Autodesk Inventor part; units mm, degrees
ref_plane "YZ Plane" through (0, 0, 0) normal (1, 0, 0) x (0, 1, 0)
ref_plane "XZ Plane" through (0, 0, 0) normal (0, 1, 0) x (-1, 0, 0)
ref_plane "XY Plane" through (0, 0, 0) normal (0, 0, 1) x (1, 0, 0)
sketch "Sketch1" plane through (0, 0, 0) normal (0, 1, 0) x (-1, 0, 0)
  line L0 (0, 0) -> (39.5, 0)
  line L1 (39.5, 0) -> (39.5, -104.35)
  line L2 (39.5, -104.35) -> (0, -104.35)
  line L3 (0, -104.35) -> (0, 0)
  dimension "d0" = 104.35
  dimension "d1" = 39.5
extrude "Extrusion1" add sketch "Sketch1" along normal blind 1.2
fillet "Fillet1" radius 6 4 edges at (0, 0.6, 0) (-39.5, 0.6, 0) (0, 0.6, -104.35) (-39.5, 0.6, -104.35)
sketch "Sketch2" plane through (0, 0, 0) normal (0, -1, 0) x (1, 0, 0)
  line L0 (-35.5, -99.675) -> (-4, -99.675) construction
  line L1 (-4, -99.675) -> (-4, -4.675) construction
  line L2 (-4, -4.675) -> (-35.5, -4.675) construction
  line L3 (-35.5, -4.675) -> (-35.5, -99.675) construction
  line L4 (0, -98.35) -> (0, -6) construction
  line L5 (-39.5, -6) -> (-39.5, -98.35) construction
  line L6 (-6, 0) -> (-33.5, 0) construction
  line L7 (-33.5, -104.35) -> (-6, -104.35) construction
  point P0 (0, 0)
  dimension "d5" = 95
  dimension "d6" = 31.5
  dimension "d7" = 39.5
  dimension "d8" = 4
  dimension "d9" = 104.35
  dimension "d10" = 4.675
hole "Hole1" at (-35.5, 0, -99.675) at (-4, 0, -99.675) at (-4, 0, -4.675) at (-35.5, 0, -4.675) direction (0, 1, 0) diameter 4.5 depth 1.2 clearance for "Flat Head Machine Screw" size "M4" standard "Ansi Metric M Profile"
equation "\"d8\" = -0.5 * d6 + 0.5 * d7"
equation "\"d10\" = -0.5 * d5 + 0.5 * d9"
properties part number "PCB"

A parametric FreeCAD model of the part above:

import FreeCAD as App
import Part
import Sketcher

V = App.Vector


def edges_at(feature, points):
    """Names of the edges that pass closest to the given points."""
    edges = feature.Shape.Edges
    near = lambda p: min(range(len(edges)), key=lambda i: edges[i].distToShape(Part.Vertex(*p))[0])
    return sorted({f"Edge{near(p) + 1}" for p in points})

doc = App.newDocument("Part")
body = doc.addObject("PartDesign::Body", "Body")

# Sketch on XZ plane
sketch1 = body.newObject("Sketcher::SketchObject", "Sketch")
sketch1.AttachmentSupport = (doc.getObject("XZ_Plane"), [""])
sketch1.MapMode = "FlatFace"
sketch1.addGeometry([
    Part.LineSegment(V(-40, 0, 0), V(0, 0, 0)),
    Part.LineSegment(V(0, 0, 0), V(0, -104, 0)),
    Part.LineSegment(V(0, -104, 0), V(-40, -104, 0)),
    Part.LineSegment(V(-40, -104, 0), V(-40, 0, 0)),
], False)
sketch1.addConstraint([
    Sketcher.Constraint("Coincident", 0, 2, 1, 1),
    Sketcher.Constraint("Coincident", 1, 2, 2, 1),
    Sketcher.Constraint("Coincident", 2, 2, 3, 1),
    Sketcher.Constraint("Coincident", 3, 2, 0, 1),
    Sketcher.Constraint("Horizontal", 0),
    Sketcher.Constraint("Vertical", 1),
    Sketcher.Constraint("Horizontal", 2),
    Sketcher.Constraint("Vertical", 3),
    Sketcher.Constraint("Coincident", 0, 2, -1, 1),
    Sketcher.Constraint("DistanceX", 0, 1, 0, 2, 39.5),
    Sketcher.Constraint("DistanceY", 1, 2, 1, 1, 104.35),
])
pad1 = body.newObject("PartDesign::Pad", "Pad")
pad1.Profile = sketch1
pad1.Length = 1.2
pad1.Reversed = True
doc.recompute()

fillet = body.newObject("PartDesign::Fillet", "Fillet")
fillet.Base = (pad1, edges_at(pad1, [
    (0, 0.6, 0),
    (-39.5, 0.6, 0),
    (0, 0.6, -104.35),
    (-39.5, 0.6, -104.35),
]))
fillet.Radius = 6

# Sketch on XZ plane
sketch2 = body.newObject("Sketcher::SketchObject", "Sketch001")
sketch2.AttachmentSupport = (doc.getObject("XZ_Plane"), [""])
sketch2.MapMode = "FlatFace"
sketch2.addGeometry([
    Part.Circle(V(-35.5, -99.7, 0), V(0, 0, 1), 2.2),
    Part.Circle(V(-4, -99.7, 0), V(0, 0, 1), 2.2),
    Part.Circle(V(-4, -4.7, 0), V(0, 0, 1), 2.2),
    Part.Circle(V(-35.5, -4.7, 0), V(0, 0, 1), 2.2),
], False)
sketch2.addConstraint([
    Sketcher.Constraint("Equal", 0, 1),
    Sketcher.Constraint("Equal", 1, 2),
    Sketcher.Constraint("Equal", 2, 3),
    Sketcher.Constraint("Horizontal", 0, 3, 1, 3),
    Sketcher.Constraint("Horizontal", 2, 3, 3, 3),
    Sketcher.Constraint("Vertical", 1, 3, 2, 3),
    Sketcher.Constraint("Vertical", 0, 3, 3, 3),
    Sketcher.Constraint("Diameter", 0, 4.5),
    Sketcher.Constraint("DistanceX", 1, 3, -1, 1, 4.0),
    Sketcher.Constraint("DistanceY", 1, 3, 2, 3, 95.0),
    Sketcher.Constraint("DistanceX", 0, 3, -1, 1, 35.5),
    Sketcher.Constraint("DistanceY", 0, 3, -1, 1, 99.675),
])
doc.recompute()
hole = body.newObject("PartDesign::Hole", "Hole")
hole.Profile = sketch2
hole.ThreadType = "None"
hole.Diameter = 4.5
hole.DepthType = "Dimension"
hole.Depth = 1.2
hole.DrillPoint = "Flat"

doc.recompute()
